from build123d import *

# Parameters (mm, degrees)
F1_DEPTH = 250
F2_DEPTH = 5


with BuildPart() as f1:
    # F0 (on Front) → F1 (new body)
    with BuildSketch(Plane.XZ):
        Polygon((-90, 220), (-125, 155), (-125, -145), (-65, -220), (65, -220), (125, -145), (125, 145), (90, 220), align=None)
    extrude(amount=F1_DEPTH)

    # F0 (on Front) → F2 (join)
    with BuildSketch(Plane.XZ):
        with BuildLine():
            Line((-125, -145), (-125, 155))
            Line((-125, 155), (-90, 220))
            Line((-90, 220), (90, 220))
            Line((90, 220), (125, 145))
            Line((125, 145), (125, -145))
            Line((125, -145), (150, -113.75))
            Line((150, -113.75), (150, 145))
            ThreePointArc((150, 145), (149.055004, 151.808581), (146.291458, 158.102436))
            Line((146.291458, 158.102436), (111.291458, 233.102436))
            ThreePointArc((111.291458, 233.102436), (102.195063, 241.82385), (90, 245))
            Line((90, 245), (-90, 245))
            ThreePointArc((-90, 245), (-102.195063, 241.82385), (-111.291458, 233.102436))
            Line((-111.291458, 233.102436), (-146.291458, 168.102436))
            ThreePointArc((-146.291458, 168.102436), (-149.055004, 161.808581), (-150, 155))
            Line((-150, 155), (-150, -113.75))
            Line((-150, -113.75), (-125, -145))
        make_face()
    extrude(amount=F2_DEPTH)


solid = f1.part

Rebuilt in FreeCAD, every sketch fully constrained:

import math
import FreeCAD as App
import Part
import Sketcher

V = App.Vector

doc = App.newDocument("Part")
body = doc.addObject("PartDesign::Body", "Body")

# Sketch on XZ plane
sketch1 = body.newObject("Sketcher::SketchObject", "Sketch")
sketch1.AttachmentSupport = (doc.getObject("XZ_Plane"), [""])
sketch1.MapMode = "FlatFace"
sketch1.addGeometry([
    Part.LineSegment(V(-90, 220, 0), V(-125, 155, 0)),  # 0
    Part.LineSegment(V(-125, 155, 0), V(-125, -145, 0)),  # 1
    Part.LineSegment(V(-125, -145, 0), V(-65, -220, 0)),  # 2
    Part.LineSegment(V(-65, -220, 0), V(65, -220, 0)),  # 3
    Part.LineSegment(V(65, -220, 0), V(125, -145, 0)),  # 4
    Part.LineSegment(V(125, -145, 0), V(125, 145, 0)),  # 5
    Part.LineSegment(V(125, 145, 0), V(90, 220, 0)),  # 6
    Part.LineSegment(V(90, 220, 0), V(-90, 220, 0)),  # 7
], False)
sketch1.addConstraint([
    Sketcher.Constraint("Coincident", 0, 2, 1, 1),
    Sketcher.Constraint("Coincident", 1, 2, 2, 1),
    Sketcher.Constraint("Coincident", 2, 2, 3, 1),
    Sketcher.Constraint("Coincident", 3, 2, 4, 1),
    Sketcher.Constraint("Coincident", 4, 2, 5, 1),
    Sketcher.Constraint("Coincident", 5, 2, 6, 1),
    Sketcher.Constraint("Coincident", 6, 2, 7, 1),
    Sketcher.Constraint("Coincident", 7, 2, 0, 1),
    Sketcher.Constraint("Vertical", 1),
    Sketcher.Constraint("Horizontal", 3),
    Sketcher.Constraint("Vertical", 5),
    Sketcher.Constraint("Horizontal", 7),
    Sketcher.Constraint("Symmetric", 1, 2, 5, 2, -1, 1),
    Sketcher.Constraint("Horizontal", 1, 2, 4, 2),
    Sketcher.Constraint("Equal", 2, 4),
    Sketcher.Constraint("DistanceX", 3, 1, 3, 2, 130.0),
    Sketcher.Constraint("DistanceX", 7, 2, 7, 1, 180.0),
    Sketcher.Constraint("DistanceY", 1, 2, 1, 1, 300.0),
    Sketcher.Constraint("DistanceY", 5, 1, 5, 2, 290.0),
    Sketcher.Constraint("DistanceX", 0, 2, -1, 1, 125.0),
    Sketcher.Constraint("DistanceY", 2, 2, -1, 1, 220.0),
    Sketcher.Constraint("DistanceX", -1, 1, 6, 2, 90.0),
    Sketcher.Constraint("DistanceY", -1, 1, 6, 2, 220.0),
])
pad1 = body.newObject("PartDesign::Pad", "Pad")
pad1.Profile = sketch1
pad1.Length = 250

# Sketch on XZ plane
sketch2 = body.newObject("Sketcher::SketchObject", "Sketch001")
sketch2.AttachmentSupport = (doc.getObject("XZ_Plane"), [""])
sketch2.MapMode = "FlatFace"
sketch2.addGeometry([
    Part.LineSegment(V(-125, -145, 0), V(-125, 155, 0)),  # 0
    Part.LineSegment(V(-125, 155, 0), V(-90, 220, 0)),  # 1
    Part.LineSegment(V(-90, 220, 0), V(90, 220, 0)),  # 2
    Part.LineSegment(V(90, 220, 0), V(125, 145, 0)),  # 3
    Part.LineSegment(V(125, 145, 0), V(125, -145, 0)),  # 4
    Part.LineSegment(V(125, -145, 0), V(150, -114, 0)),  # 5
    Part.LineSegment(V(150, -114, 0), V(150, 145, 0)),  # 6
    Part.ArcOfCircle(Part.Circle(V(125, 145, 0), V(0, 0, 1), 25), math.radians(0), math.radians(32)),  # 7
    Part.LineSegment(V(146, 158, 0), V(111, 233, 0)),  # 8
    Part.ArcOfCircle(Part.Circle(V(90, 220, 0), V(0, 0, 1), 25), math.radians(32), math.radians(90)),  # 9
    Part.LineSegment(V(90, 245, 0), V(-90, 245, 0)),  # 10
    Part.ArcOfCircle(Part.Circle(V(-90, 220, 0), V(0, 0, 1), 25), math.radians(90), math.radians(148)),  # 11
    Part.LineSegment(V(-111, 233, 0), V(-146, 168, 0)),  # 12
    Part.ArcOfCircle(Part.Circle(V(-125, 155, 0), V(0, 0, 1), 25), math.radians(148), math.radians(180)),  # 13
    Part.LineSegment(V(-150, 155, 0), V(-150, -114, 0)),  # 14
    Part.LineSegment(V(-150, -114, 0), V(-125, -145, 0)),  # 15
], False)
sketch2.addConstraint([
    Sketcher.Constraint("Coincident", 0, 2, 1, 1),
    Sketcher.Constraint("Coincident", 1, 2, 2, 1),
    Sketcher.Constraint("Coincident", 2, 2, 3, 1),
    Sketcher.Constraint("Coincident", 3, 2, 4, 1),
    Sketcher.Constraint("Coincident", 4, 2, 5, 1),
    Sketcher.Constraint("Coincident", 5, 2, 6, 1),
    Sketcher.Constraint("Tangent", 6, 2, 7, 1),
    Sketcher.Constraint("Coincident", 7, 2, 8, 1),
    Sketcher.Constraint("Coincident", 8, 2, 9, 1),
    Sketcher.Constraint("Tangent", 9, 2, 10, 1),
    Sketcher.Constraint("Tangent", 10, 2, 11, 1),
    Sketcher.Constraint("Coincident", 11, 2, 12, 1),
    Sketcher.Constraint("Coincident", 12, 2, 13, 1),
    Sketcher.Constraint("Tangent", 13, 2, 14, 1),
    Sketcher.Constraint("Coincident", 14, 2, 15, 1),
    Sketcher.Constraint("Coincident", 15, 2, 0, 1),
    Sketcher.Constraint("Vertical", 0),
    Sketcher.Constraint("Horizontal", 2),
    Sketcher.Constraint("Vertical", 4),
    Sketcher.Constraint("Vertical", 6),
    Sketcher.Constraint("Horizontal", 10),
    Sketcher.Constraint("Vertical", 14),
    Sketcher.Constraint("Coincident", 0, 2, 13, 3),
    Sketcher.Constraint("Coincident", 1, 2, 11, 3),
    Sketcher.Constraint("Coincident", 2, 2, 9, 3),
    Sketcher.Constraint("Coincident", 3, 2, 7, 3),
    Sketcher.Constraint("Equal", 7, 13),
    Sketcher.Constraint("Symmetric", 3, 2, 15, 2, -1, 1),
    Sketcher.Constraint("Symmetric", 8, 2, 11, 2, -2),
    Sketcher.Constraint("Parallel", 3, 8),
    Sketcher.Constraint("Parallel", 1, 12),
    Sketcher.Constraint("Horizontal", 5, 2, 14, 2),
    Sketcher.Constraint("Horizontal", 4, 2, 15, 2),
    Sketcher.Constraint("Equal", 3, 8),
    Sketcher.Constraint("DistanceX", 2, 1, 2, 2, 180.0),
    Sketcher.Constraint("DistanceY", 0, 1, 0, 2, 300.0),
    Sketcher.Constraint("DistanceY", 4, 2, 4, 1, 290.0),
    Sketcher.Constraint("DistanceX", 0, 2, -1, 1, 125.0),
    Sketcher.Constraint("DistanceY", -1, 1, 1, 2, 220.0),
    Sketcher.Constraint("DistanceX", -1, 1, 5, 2, 150.0),
    Sketcher.Constraint("DistanceY", 6, 1, 6, 2, 258.75),
    Sketcher.Constraint("DistanceX", -1, 1, 7, 2, 146.291458),
])
pad2 = body.newObject("PartDesign::Pad", "Pad001")
pad2.Profile = sketch2
pad2.Length = 5

doc.recompute()
